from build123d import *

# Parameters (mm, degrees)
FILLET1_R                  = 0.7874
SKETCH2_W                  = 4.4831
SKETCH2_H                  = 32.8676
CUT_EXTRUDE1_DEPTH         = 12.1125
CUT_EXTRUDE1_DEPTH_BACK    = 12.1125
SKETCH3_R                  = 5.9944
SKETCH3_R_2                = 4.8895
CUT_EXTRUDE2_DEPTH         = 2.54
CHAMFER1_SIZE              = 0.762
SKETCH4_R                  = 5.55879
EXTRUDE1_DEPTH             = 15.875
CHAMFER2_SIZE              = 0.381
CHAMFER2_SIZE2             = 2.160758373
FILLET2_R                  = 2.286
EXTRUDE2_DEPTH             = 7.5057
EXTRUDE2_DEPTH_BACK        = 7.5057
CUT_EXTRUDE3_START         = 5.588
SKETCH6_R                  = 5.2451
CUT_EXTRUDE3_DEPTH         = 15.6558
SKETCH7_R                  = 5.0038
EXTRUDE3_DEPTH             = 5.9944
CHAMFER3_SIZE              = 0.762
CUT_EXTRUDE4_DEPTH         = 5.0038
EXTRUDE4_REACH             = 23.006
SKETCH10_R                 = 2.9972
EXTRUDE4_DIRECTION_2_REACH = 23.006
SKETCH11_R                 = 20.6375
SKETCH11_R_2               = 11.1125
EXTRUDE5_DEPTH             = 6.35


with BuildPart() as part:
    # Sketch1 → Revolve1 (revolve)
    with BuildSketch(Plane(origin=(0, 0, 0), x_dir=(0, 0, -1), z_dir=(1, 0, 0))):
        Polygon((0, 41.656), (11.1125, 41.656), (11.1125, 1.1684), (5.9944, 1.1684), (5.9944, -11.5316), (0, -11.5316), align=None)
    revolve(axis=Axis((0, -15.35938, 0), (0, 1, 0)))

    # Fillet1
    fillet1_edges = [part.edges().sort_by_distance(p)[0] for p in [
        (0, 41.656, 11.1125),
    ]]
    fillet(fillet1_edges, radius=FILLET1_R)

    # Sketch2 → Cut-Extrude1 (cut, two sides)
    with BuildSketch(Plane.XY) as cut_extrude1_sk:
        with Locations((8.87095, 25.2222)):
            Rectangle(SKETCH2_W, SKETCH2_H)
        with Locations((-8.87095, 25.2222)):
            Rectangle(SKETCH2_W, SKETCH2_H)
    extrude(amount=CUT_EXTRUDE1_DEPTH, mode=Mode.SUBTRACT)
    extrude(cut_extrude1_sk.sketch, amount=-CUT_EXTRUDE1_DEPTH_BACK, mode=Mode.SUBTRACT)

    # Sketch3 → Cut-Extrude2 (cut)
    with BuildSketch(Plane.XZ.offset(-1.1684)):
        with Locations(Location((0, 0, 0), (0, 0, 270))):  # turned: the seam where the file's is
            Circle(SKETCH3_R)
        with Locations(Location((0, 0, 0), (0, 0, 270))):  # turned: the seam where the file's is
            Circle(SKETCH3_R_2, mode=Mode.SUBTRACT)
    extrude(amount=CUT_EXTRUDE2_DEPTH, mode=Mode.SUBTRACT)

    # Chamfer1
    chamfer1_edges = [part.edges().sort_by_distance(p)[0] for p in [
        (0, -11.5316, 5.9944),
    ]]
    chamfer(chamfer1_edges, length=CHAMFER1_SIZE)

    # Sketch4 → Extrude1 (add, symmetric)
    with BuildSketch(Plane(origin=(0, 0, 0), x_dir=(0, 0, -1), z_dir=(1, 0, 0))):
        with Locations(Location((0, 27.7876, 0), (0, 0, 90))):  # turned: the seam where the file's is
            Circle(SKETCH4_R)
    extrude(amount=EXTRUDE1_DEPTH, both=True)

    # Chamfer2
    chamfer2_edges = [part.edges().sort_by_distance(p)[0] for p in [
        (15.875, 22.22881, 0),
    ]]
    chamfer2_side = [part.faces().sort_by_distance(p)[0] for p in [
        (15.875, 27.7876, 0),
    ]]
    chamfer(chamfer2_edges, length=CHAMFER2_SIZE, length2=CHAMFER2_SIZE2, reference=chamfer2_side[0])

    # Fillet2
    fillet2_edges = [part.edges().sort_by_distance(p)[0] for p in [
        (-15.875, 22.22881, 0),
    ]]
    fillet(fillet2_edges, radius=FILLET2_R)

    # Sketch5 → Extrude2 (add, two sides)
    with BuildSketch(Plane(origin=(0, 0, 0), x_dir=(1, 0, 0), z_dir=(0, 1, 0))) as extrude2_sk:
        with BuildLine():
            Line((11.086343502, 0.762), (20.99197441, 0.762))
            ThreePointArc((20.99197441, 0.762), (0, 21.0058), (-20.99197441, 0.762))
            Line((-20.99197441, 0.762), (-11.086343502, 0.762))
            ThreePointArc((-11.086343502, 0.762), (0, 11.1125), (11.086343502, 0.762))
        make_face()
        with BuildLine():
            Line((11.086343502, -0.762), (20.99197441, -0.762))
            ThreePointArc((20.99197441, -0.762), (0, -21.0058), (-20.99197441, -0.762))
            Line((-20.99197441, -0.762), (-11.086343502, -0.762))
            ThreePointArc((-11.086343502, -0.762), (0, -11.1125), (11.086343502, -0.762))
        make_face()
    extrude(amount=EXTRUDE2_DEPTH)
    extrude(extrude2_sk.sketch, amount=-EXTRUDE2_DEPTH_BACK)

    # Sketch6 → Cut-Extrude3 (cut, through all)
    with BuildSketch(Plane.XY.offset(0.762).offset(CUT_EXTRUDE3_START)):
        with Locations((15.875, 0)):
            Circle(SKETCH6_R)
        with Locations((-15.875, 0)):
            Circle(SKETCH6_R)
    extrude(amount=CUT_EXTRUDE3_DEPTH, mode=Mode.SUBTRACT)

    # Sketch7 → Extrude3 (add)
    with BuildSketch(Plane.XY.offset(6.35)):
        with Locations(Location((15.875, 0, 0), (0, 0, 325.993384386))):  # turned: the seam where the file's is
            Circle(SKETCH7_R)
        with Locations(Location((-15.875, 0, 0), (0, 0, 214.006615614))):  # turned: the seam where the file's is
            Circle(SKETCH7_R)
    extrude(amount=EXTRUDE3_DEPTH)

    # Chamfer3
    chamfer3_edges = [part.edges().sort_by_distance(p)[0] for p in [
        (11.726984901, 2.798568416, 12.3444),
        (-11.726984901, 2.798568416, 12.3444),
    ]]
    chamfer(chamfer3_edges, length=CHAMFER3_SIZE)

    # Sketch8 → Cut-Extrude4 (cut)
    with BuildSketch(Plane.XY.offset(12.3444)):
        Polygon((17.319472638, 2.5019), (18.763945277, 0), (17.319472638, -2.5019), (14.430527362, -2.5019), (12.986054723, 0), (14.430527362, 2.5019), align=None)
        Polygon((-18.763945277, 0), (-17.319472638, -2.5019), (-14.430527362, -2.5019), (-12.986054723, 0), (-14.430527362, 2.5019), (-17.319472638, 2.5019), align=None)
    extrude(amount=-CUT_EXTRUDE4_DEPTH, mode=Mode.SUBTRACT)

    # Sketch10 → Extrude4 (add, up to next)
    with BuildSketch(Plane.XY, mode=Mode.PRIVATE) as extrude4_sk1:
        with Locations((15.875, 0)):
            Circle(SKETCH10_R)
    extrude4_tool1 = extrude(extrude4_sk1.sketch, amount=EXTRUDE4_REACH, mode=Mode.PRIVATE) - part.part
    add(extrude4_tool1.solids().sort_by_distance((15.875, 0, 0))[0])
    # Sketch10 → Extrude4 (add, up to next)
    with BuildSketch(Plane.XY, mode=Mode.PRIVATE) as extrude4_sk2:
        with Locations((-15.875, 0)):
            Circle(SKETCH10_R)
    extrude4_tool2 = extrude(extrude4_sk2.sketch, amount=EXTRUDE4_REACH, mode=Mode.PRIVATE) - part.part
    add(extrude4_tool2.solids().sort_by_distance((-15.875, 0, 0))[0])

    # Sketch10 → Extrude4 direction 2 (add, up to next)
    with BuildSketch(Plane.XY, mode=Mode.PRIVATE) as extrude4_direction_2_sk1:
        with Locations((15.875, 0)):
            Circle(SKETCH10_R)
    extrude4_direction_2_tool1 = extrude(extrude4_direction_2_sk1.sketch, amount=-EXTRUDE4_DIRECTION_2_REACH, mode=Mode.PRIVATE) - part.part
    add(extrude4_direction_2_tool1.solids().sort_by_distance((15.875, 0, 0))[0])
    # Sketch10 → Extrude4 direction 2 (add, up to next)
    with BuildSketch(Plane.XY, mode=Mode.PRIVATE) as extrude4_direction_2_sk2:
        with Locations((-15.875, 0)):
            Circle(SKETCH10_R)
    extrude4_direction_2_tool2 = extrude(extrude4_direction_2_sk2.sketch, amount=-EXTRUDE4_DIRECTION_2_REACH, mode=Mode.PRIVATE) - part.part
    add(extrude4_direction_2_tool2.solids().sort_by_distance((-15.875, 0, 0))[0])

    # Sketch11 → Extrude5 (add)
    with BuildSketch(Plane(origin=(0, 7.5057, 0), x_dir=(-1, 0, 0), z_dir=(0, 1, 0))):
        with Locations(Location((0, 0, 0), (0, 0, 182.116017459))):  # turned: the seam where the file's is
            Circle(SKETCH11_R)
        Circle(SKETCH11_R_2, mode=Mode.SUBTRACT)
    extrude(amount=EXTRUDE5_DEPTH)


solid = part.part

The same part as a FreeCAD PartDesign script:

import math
import FreeCAD as App
import Part
import Sketcher
Q = App.Units.Quantity


def edges_at(feature, points):
    """Names of the edges that pass closest to the given points."""
    edges = feature.Shape.Edges
    near = lambda p: min(range(len(edges)), key=lambda i: edges[i].distToShape(Part.Vertex(*p))[0])
    return sorted({f"Edge{near(p) + 1}" for p in points})


def add_polygon(sketch, points):
    """Adds a closed chain of lines whose ends are joined by coincident constraints."""
    first, n = sketch.GeometryCount, len(points)
    for a, b in zip(points, points[1:] + points[:1]):
        sketch.addGeometry(Part.LineSegment(App.Vector(*a, 0), App.Vector(*b, 0)), False)
    for i in range(n):
        sketch.addConstraint(Sketcher.Constraint("Coincident", first + i, 2, first + (i + 1) % n, 1))

doc = App.newDocument("Part")
body = doc.addObject("PartDesign::Body", "Body")

# Sketch on YZ plane
sketch1 = doc.addObject("Sketcher::SketchObject", "Sketch")
body.addObject(sketch1)
sketch1.AttachmentSupport = (doc.YZ_Plane, [""])
sketch1.MapMode = "FlatFace"
add_polygon(sketch1, [(42, -11), (42, 0), (-12, 0), (-12, -6), (1, -6), (1, -11)])  # lines 0-5
sketch1.addConstraint(Sketcher.Constraint("Vertical", 0))
sketch1.addConstraint(Sketcher.Constraint("Horizontal", 1))
sketch1.addConstraint(Sketcher.Constraint("Vertical", 2))
sketch1.addConstraint(Sketcher.Constraint("Horizontal", 3))
sketch1.addConstraint(Sketcher.Constraint("Vertical", 4))
sketch1.addConstraint(Sketcher.Constraint("Horizontal", 5))
sketch1.addConstraint(Sketcher.Constraint("PointOnObject", 0, 2, -1))
sketch1.addConstraint(Sketcher.Constraint("DistanceX", 3, 1, 3, 2, Q("0.5 in")))
sketch1.addConstraint(Sketcher.Constraint("DistanceX", 1, 2, 1, 1, Q("2.094 in")))
sketch1.addConstraint(Sketcher.Constraint("DistanceY", 0, 1, 0, 2, Q("0.4375 in")))
sketch1.addConstraint(Sketcher.Constraint("DistanceY", 2, 2, 2, 1, Q("0.236 in")))
sketch1.addConstraint(Sketcher.Constraint("DistanceX", -1, 1, 0, 2, Q("1.64 in")))
revolution = doc.addObject("PartDesign::Revolution", "Revolution")
body.addObject(revolution)
revolution.Profile = sketch1
revolution.ReferenceAxis = (sketch1, ["H_Axis"])
revolution.Angle = 360
doc.recompute()

fillet = doc.addObject("PartDesign::Fillet", "Fillet")
body.addObject(fillet)
fillet.Base = (revolution, edges_at(revolution, [(0, 41.656, 11.113)]))
fillet.Radius = Q("0.031 in")

# Sketch on XY plane
sketch2 = doc.addObject("Sketcher::SketchObject", "Sketch001")
body.addObject(sketch2)
sketch2.AttachmentSupport = (doc.XY_Plane, [""])
sketch2.MapMode = "FlatFace"
add_polygon(sketch2, [(6.6, 41.7), (6.6, 8.8), (11.1, 8.8), (11.1, 41.7)])  # lines 0-3
add_polygon(sketch2, [(-11.1, 41.7), (-11.1, 8.8), (-6.6, 8.8), (-6.6, 41.7)])  # lines 4-7
sketch2.addConstraint(Sketcher.Constraint("Vertical", 0))
sketch2.addConstraint(Sketcher.Constraint("Horizontal", 1))
sketch2.addConstraint(Sketcher.Constraint("Vertical", 2))
sketch2.addConstraint(Sketcher.Constraint("Horizontal", 3))
sketch2.addConstraint(Sketcher.Constraint("Vertical", 4))
sketch2.addConstraint(Sketcher.Constraint("Horizontal", 5))
sketch2.addConstraint(Sketcher.Constraint("Vertical", 6))
sketch2.addConstraint(Sketcher.Constraint("Horizontal", 7))
sketch2.addConstraint(Sketcher.Constraint("Symmetric", 1, 2, 4, 2, -2))
sketch2.addConstraint(Sketcher.Constraint("Symmetric", 3, 2, 6, 2, -2))
sketch2.addConstraint(Sketcher.Constraint("DistanceY", 0, 2, 0, 1, Q("1.294 in")))
sketch2.addConstraint(Sketcher.Constraint("DistanceY", -1, 1, 2, 2, Q("1.64 in")))
sketch2.addConstraint(Sketcher.Constraint("DistanceX", 1, 1, 1, 2, Q("0.1765 in")))
sketch2.addConstraint(Sketcher.Constraint("DistanceX", -1, 1, 0, 2, Q("0.261 in")))
pocket1 = doc.addObject("PartDesign::Pocket", "Pocket")
body.addObject(pocket1)
pocket1.Profile = sketch2
pocket1.Type = "ThroughAll"
pocket1.Midplane = True

# Sketch on XZ plane
sketch3 = doc.addObject("Sketcher::SketchObject", "Sketch002")
body.addObject(sketch3)
sketch3.AttachmentSupport = (doc.XZ_Plane, [""])
sketch3.MapMode = "FlatFace"
sketch3.AttachmentOffset = App.Placement(App.Vector(0, 0, -0.046 * 25.4), App.Rotation())
sketch3.addGeometry(Part.Circle(App.Vector(0, 0, 0), App.Vector(0, 0, 1), 6), False)
sketch3.addGeometry(Part.Circle(App.Vector(0, 0, 0), App.Vector(0, 0, 1), 4.9), False)
sketch3.addConstraint(Sketcher.Constraint("Coincident", 0, 3, -1, 1))
sketch3.addConstraint(Sketcher.Constraint("Coincident", 1, 3, -1, 1))
sketch3.addConstraint(Sketcher.Constraint("Diameter", 0, Q("0.472 in")))
sketch3.addConstraint(Sketcher.Constraint("Diameter", 1, Q("0.385 in")))
pocket2 = doc.addObject("PartDesign::Pocket", "Pocket001")
body.addObject(pocket2)
pocket2.Profile = sketch3
pocket2.Length = Q("0.1 in")
pocket2.Reversed = True
doc.recompute()

chamfer = doc.addObject("PartDesign::Chamfer", "Chamfer")
body.addObject(chamfer)
chamfer.Base = (pocket2, edges_at(pocket2, [(0, -11.532, 5.994)]))
chamfer.Size = Q("0.03 in")

# Sketch on YZ plane
sketch4 = doc.addObject("Sketcher::SketchObject", "Sketch003")
body.addObject(sketch4)
sketch4.AttachmentSupport = (doc.YZ_Plane, [""])
sketch4.MapMode = "FlatFace"
sketch4.addGeometry(Part.Circle(App.Vector(28, 0, 0), App.Vector(0, 0, 1), 6), False)
sketch4.addConstraint(Sketcher.Constraint("PointOnObject", 0, 3, -1))
sketch4.addConstraint(Sketcher.Constraint("Diameter", 0, Q("0.4377 in")))
sketch4.addConstraint(Sketcher.Constraint("DistanceX", -1, 1, 0, 3, Q("1.094 in")))
pad1 = doc.addObject("PartDesign::Pad", "Pad")
body.addObject(pad1)
pad1.Profile = sketch4
pad1.Length = Q("1.25 in")
pad1.Midplane = True
doc.recompute()

chamfer2 = doc.addObject("PartDesign::Chamfer", "Chamfer001")
body.addObject(chamfer2)
chamfer2.Base = (pad1, edges_at(pad1, [(15.875, 22.229, 0)]))
chamfer2.ChamferType = "Two distances"
chamfer2.Size = Q("0.015 in")
chamfer2.Size2 = 2.160758
chamfer2.FlipDirection = True
doc.recompute()

fillet2 = doc.addObject("PartDesign::Fillet", "Fillet001")
body.addObject(fillet2)
fillet2.Base = (chamfer2, edges_at(chamfer2, [(-15.875, 22.229, 0)]))
fillet2.Radius = Q("0.09 in")

# Sketch on XZ plane
sketch5 = doc.addObject("Sketcher::SketchObject", "Sketch004")
body.addObject(sketch5)
sketch5.AttachmentSupport = (doc.XZ_Plane, [""])
sketch5.MapMode = "FlatFace"
sketch5.addGeometry(Part.LineSegment(App.Vector(11, -1, 0), App.Vector(21, -1, 0)), False)
sketch5.addGeometry(Part.ArcOfCircle(Part.Circle(App.Vector(0, 0, 0), App.Vector(0, 0, 1), 21), math.radians(-178), math.radians(-2)), False)
sketch5.addGeometry(Part.LineSegment(App.Vector(-21, -1, 0), App.Vector(-11, -1, 0)), False)
sketch5.addGeometry(Part.ArcOfCircle(Part.Circle(App.Vector(0, 0, 0), App.Vector(0, 0, 1), 11), math.radians(-176), math.radians(-4)), False)
sketch5.addGeometry(Part.LineSegment(App.Vector(21, 1, 0), App.Vector(11, 1, 0)), False)
sketch5.addGeometry(Part.ArcOfCircle(Part.Circle(App.Vector(0, 0, 0), App.Vector(0, 0, 1), 11), math.radians(4), math.radians(176)), False)
sketch5.addGeometry(Part.LineSegment(App.Vector(-11, 1, 0), App.Vector(-21, 1, 0)), False)
sketch5.addGeometry(Part.ArcOfCircle(Part.Circle(App.Vector(0, 0, 0), App.Vector(0, 0, 1), 21), math.radians(2), math.radians(178)), False)
sketch5.addConstraint(Sketcher.Constraint("Coincident", 0, 2, 1, 2))
sketch5.addConstraint(Sketcher.Constraint("Coincident", 1, 1, 2, 1))
sketch5.addConstraint(Sketcher.Constraint("Coincident", 2, 2, 3, 1))
sketch5.addConstraint(Sketcher.Constraint("Coincident", 3, 2, 0, 1))
sketch5.addConstraint(Sketcher.Constraint("Coincident", 4, 2, 5, 1))
sketch5.addConstraint(Sketcher.Constraint("Coincident", 5, 2, 6, 1))
sketch5.addConstraint(Sketcher.Constraint("Coincident", 6, 2, 7, 2))
sketch5.addConstraint(Sketcher.Constraint("Coincident", 7, 1, 4, 1))
sketch5.addConstraint(Sketcher.Constraint("Horizontal", 0))
sketch5.addConstraint(Sketcher.Constraint("Horizontal", 2))
sketch5.addConstraint(Sketcher.Constraint("Horizontal", 4))
sketch5.addConstraint(Sketcher.Constraint("Horizontal", 6))
sketch5.addConstraint(Sketcher.Constraint("Coincident", 1, 3, -1, 1))
sketch5.addConstraint(Sketcher.Constraint("Coincident", 3, 3, -1, 1))
sketch5.addConstraint(Sketcher.Constraint("Coincident", 5, 3, -1, 1))
sketch5.addConstraint(Sketcher.Constraint("Coincident", 7, 3, -1, 1))
sketch5.addConstraint(Sketcher.Constraint("Equal", 3, 5))
sketch5.addConstraint(Sketcher.Constraint("Equal", 1, 7))
sketch5.addConstraint(Sketcher.Constraint("Horizontal", 0, 2, 1, 1))
sketch5.addConstraint(Sketcher.Constraint("Horizontal", 4, 2, 5, 2))
sketch5.addConstraint(Sketcher.Constraint("Vertical", 3, 2, 4, 2))
sketch5.addConstraint(Sketcher.Constraint("Radius", 1, Q("0.827 in")))
sketch5.addConstraint(Sketcher.Constraint("Radius", 3, Q("0.4375 in")))
sketch5.addConstraint(Sketcher.Constraint("DistanceY", 0, 2, -1, 1, Q("0.03 in")))
pad2 = doc.addObject("PartDesign::Pad", "Pad001")
body.addObject(pad2)
pad2.Profile = sketch5
pad2.Type = "TwoLengths"
pad2.Length = Q("0.2955 in")
pad2.Length2 = Q("0.2955 in")
pad2.Reversed = True

# Sketch on XY plane
sketch6 = doc.addObject("Sketcher::SketchObject", "Sketch005")
body.addObject(sketch6)
sketch6.AttachmentSupport = (doc.XY_Plane, [""])
sketch6.MapMode = "FlatFace"
sketch6.AttachmentOffset = App.Placement(App.Vector(0, 0, 0.25 * 25.4), App.Rotation())
sketch6.addGeometry(Part.Circle(App.Vector(16, 0, 0), App.Vector(0, 0, 1), 5), False)
sketch6.addGeometry(Part.Circle(App.Vector(-16, 0, 0), App.Vector(0, 0, 1), 5), False)
sketch6.addConstraint(Sketcher.Constraint("Equal", 0, 1))
sketch6.addConstraint(Sketcher.Constraint("Symmetric", 0, 3, 1, 3, -1, 1))
sketch6.addConstraint(Sketcher.Constraint("PointOnObject", 0, 3, -1))
sketch6.addConstraint(Sketcher.Constraint("Diameter", 0, Q("0.413 in")))
sketch6.addConstraint(Sketcher.Constraint("DistanceX", 1, 3, 0, 3, Q("1.25 in")))
pocket3 = doc.addObject("PartDesign::Pocket", "Pocket002")
body.addObject(pocket3)
pocket3.Profile = sketch6
pocket3.Type = "ThroughAll"
pocket3.Reversed = True

# Sketch on XY plane
sketch7 = doc.addObject("Sketcher::SketchObject", "Sketch006")
body.addObject(sketch7)
sketch7.AttachmentSupport = (doc.XY_Plane, [""])
sketch7.MapMode = "FlatFace"
sketch7.AttachmentOffset = App.Placement(App.Vector(0, 0, 0.25 * 25.4), App.Rotation())
sketch7.addGeometry(Part.Circle(App.Vector(16, 0, 0), App.Vector(0, 0, 1), 5), False)
sketch7.addGeometry(Part.Circle(App.Vector(-16, 0, 0), App.Vector(0, 0, 1), 5), False)
sketch7.addConstraint(Sketcher.Constraint("Equal", 0, 1))
sketch7.addConstraint(Sketcher.Constraint("Symmetric", 0, 3, 1, 3, -1, 1))
sketch7.addConstraint(Sketcher.Constraint("PointOnObject", 0, 3, -1))
sketch7.addConstraint(Sketcher.Constraint("Diameter", 0, Q("0.394 in")))
sketch7.addConstraint(Sketcher.Constraint("DistanceX", 1, 3, 0, 3, Q("1.25 in")))
pad3 = doc.addObject("PartDesign::Pad", "Pad002")
body.addObject(pad3)
pad3.Profile = sketch7
pad3.Length = Q("0.236 in")
doc.recompute()

chamfer3 = doc.addObject("PartDesign::Chamfer", "Chamfer002")
body.addObject(chamfer3)
chamfer3.Base = (pad3, edges_at(pad3, [(11.727, 2.799, 12.344), (-11.727, 2.799, 12.344)]))
chamfer3.Size = Q("0.03 in")

# Sketch on XY plane
sketch8 = doc.addObject("Sketcher::SketchObject", "Sketch007")
body.addObject(sketch8)
sketch8.AttachmentSupport = (doc.XY_Plane, [""])
sketch8.MapMode = "FlatFace"
sketch8.AttachmentOffset = App.Placement(App.Vector(0, 0, 0.486 * 25.4), App.Rotation())
add_polygon(sketch8, [(18.8, 0), (17.3, 2.5), (14.4, 2.5), (13, 0), (14.4, -2.5), (17.3, -2.5)])  # lines 0-5
add_polygon(sketch8, [(-18.8, 0), (-17.3, -2.5), (-14.4, -2.5), (-13, 0), (-14.4, 2.5), (-17.3, 2.5)])  # lines 6-11
sketch8.addConstraint(Sketcher.Constraint("Horizontal", 1))
sketch8.addConstraint(Sketcher.Constraint("Horizontal", 4))
sketch8.addConstraint(Sketcher.Constraint("Horizontal", 7))
sketch8.addConstraint(Sketcher.Constraint("Horizontal", 10))
sketch8.addConstraint(Sketcher.Constraint("Symmetric", 0, 2, 6, 2, -1, 1))
sketch8.addConstraint(Sketcher.Constraint("Symmetric", 2, 2, 8, 2, -1, 1))
sketch8.addConstraint(Sketcher.Constraint("Symmetric", 3, 2, 9, 2, -1, 1))
sketch8.addConstraint(Sketcher.Constraint("Symmetric", 5, 2, 11, 2, -1, 1))
sketch8.addConstraint(Sketcher.Constraint("Symmetric", 4, 2, 6, 2, -2))
sketch8.addConstraint(Sketcher.Constraint("PointOnObject", 2, 2, -1))
sketch8.addConstraint(Sketcher.Constraint("PointOnObject", 5, 2, -1))
sketch8.addConstraint(Sketcher.Constraint("Parallel", 0, 3))
sketch8.addConstraint(Sketcher.Constraint("Parallel", 2, 5))
sketch8.addConstraint(Sketcher.Constraint("Parallel", 5, 8))
sketch8.addConstraint(Sketcher.Constraint("Parallel", 8, 11))
sketch8.addConstraint(Sketcher.Constraint("Angle", 0, Q("120 deg")))
sketch8.addConstraint(Sketcher.Constraint("DistanceX", 6, 2, 3, 2, Q("1.25 in")))
sketch8.addConstraint(Sketcher.Constraint("DistanceY", 3, 2, 1, 2, Q("0.197 in")))
sketch8.addConstraint(Sketcher.Constraint("DistanceX", 1, 2, 1, 1, Q("2.888945 mm")))
pocket4 = doc.addObject("PartDesign::Pocket", "Pocket003")
body.addObject(pocket4)
pocket4.Profile = sketch8
pocket4.Length = Q("0.197 in")

# Sketch on XY plane
sketch9 = doc.addObject("Sketcher::SketchObject", "Sketch008")
body.addObject(sketch9)
sketch9.AttachmentSupport = (doc.XY_Plane, [""])
sketch9.MapMode = "FlatFace"
sketch9.addGeometry(Part.Circle(App.Vector(15.9, 0, 0), App.Vector(0, 0, 1), 3), False)
sketch9.addConstraint(Sketcher.Constraint("PointOnObject", 0, 3, -1))
sketch9.addConstraint(Sketcher.Constraint("Diameter", 0, Q("0.236 in")))
sketch9.addConstraint(Sketcher.Constraint("DistanceX", -1, 1, 0, 3, Q("0.625 in")))
pad4 = doc.addObject("PartDesign::Pad", "Pad003")
body.addObject(pad4)
pad4.Profile = sketch9
pad4.Type = "UpToFirst"

# Sketch on XY plane
sketch10 = doc.addObject("Sketcher::SketchObject", "Sketch009")
body.addObject(sketch10)
sketch10.AttachmentSupport = (doc.XY_Plane, [""])
sketch10.MapMode = "FlatFace"
sketch10.addGeometry(Part.Circle(App.Vector(-15.9, 0, 0), App.Vector(0, 0, 1), 3), False)
sketch10.addConstraint(Sketcher.Constraint("PointOnObject", 0, 3, -1))
sketch10.addConstraint(Sketcher.Constraint("Diameter", 0, Q("0.236 in")))
sketch10.addConstraint(Sketcher.Constraint("DistanceX", 0, 3, -1, 1, Q("0.625 in")))
pad5 = doc.addObject("PartDesign::Pad", "Pad004")
body.addObject(pad5)
pad5.Profile = sketch10
pad5.Type = "UpToFirst"

# Sketch on XY plane
sketch11 = doc.addObject("Sketcher::SketchObject", "Sketch010")
body.addObject(sketch11)
sketch11.AttachmentSupport = (doc.XY_Plane, [""])
sketch11.MapMode = "FlatFace"
sketch11.addGeometry(Part.Circle(App.Vector(15.9, 0, 0), App.Vector(0, 0, 1), 3), False)
sketch11.addConstraint(Sketcher.Constraint("PointOnObject", 0, 3, -1))
sketch11.addConstraint(Sketcher.Constraint("Diameter", 0, Q("0.236 in")))
sketch11.addConstraint(Sketcher.Constraint("DistanceX", -1, 1, 0, 3, Q("0.625 in")))
pad6 = doc.addObject("PartDesign::Pad", "Pad005")
body.addObject(pad6)
pad6.Profile = sketch11
pad6.Type = "UpToFirst"
pad6.Reversed = True

# Sketch on XY plane
sketch12 = doc.addObject("Sketcher::SketchObject", "Sketch011")
body.addObject(sketch12)
sketch12.AttachmentSupport = (doc.XY_Plane, [""])
sketch12.MapMode = "FlatFace"
sketch12.addGeometry(Part.Circle(App.Vector(-15.9, 0, 0), App.Vector(0, 0, 1), 3), False)
sketch12.addConstraint(Sketcher.Constraint("PointOnObject", 0, 3, -1))
sketch12.addConstraint(Sketcher.Constraint("Diameter", 0, Q("0.236 in")))
sketch12.addConstraint(Sketcher.Constraint("DistanceX", 0, 3, -1, 1, Q("0.625 in")))
pad7 = doc.addObject("PartDesign::Pad", "Pad006")
body.addObject(pad7)
pad7.Profile = sketch12
pad7.Type = "UpToFirst"
pad7.Reversed = True

# Sketch on XZ plane
sketch13 = doc.addObject("Sketcher::SketchObject", "Sketch012")
body.addObject(sketch13)
sketch13.AttachmentSupport = (doc.XZ_Plane, [""])
sketch13.MapMode = "FlatFace"
sketch13.AttachmentOffset = App.Placement(App.Vector(0, 0, -0.2955 * 25.4), App.Rotation())
sketch13.addGeometry(Part.Circle(App.Vector(0, 0, 0), App.Vector(0, 0, 1), 21), False)
sketch13.addGeometry(Part.Circle(App.Vector(0, 0, 0), App.Vector(0, 0, 1), 11), False)
sketch13.addConstraint(Sketcher.Constraint("Coincident", 0, 3, -1, 1))
sketch13.addConstraint(Sketcher.Constraint("Coincident", 1, 3, -1, 1))
sketch13.addConstraint(Sketcher.Constraint("Diameter", 0, Q("1.625 in")))
sketch13.addConstraint(Sketcher.Constraint("Diameter", 1, Q("0.875 in")))
pad8 = doc.addObject("PartDesign::Pad", "Pad007")
body.addObject(pad8)
pad8.Profile = sketch13
pad8.Length = Q("0.25 in")
pad8.Reversed = True

doc.recompute()
